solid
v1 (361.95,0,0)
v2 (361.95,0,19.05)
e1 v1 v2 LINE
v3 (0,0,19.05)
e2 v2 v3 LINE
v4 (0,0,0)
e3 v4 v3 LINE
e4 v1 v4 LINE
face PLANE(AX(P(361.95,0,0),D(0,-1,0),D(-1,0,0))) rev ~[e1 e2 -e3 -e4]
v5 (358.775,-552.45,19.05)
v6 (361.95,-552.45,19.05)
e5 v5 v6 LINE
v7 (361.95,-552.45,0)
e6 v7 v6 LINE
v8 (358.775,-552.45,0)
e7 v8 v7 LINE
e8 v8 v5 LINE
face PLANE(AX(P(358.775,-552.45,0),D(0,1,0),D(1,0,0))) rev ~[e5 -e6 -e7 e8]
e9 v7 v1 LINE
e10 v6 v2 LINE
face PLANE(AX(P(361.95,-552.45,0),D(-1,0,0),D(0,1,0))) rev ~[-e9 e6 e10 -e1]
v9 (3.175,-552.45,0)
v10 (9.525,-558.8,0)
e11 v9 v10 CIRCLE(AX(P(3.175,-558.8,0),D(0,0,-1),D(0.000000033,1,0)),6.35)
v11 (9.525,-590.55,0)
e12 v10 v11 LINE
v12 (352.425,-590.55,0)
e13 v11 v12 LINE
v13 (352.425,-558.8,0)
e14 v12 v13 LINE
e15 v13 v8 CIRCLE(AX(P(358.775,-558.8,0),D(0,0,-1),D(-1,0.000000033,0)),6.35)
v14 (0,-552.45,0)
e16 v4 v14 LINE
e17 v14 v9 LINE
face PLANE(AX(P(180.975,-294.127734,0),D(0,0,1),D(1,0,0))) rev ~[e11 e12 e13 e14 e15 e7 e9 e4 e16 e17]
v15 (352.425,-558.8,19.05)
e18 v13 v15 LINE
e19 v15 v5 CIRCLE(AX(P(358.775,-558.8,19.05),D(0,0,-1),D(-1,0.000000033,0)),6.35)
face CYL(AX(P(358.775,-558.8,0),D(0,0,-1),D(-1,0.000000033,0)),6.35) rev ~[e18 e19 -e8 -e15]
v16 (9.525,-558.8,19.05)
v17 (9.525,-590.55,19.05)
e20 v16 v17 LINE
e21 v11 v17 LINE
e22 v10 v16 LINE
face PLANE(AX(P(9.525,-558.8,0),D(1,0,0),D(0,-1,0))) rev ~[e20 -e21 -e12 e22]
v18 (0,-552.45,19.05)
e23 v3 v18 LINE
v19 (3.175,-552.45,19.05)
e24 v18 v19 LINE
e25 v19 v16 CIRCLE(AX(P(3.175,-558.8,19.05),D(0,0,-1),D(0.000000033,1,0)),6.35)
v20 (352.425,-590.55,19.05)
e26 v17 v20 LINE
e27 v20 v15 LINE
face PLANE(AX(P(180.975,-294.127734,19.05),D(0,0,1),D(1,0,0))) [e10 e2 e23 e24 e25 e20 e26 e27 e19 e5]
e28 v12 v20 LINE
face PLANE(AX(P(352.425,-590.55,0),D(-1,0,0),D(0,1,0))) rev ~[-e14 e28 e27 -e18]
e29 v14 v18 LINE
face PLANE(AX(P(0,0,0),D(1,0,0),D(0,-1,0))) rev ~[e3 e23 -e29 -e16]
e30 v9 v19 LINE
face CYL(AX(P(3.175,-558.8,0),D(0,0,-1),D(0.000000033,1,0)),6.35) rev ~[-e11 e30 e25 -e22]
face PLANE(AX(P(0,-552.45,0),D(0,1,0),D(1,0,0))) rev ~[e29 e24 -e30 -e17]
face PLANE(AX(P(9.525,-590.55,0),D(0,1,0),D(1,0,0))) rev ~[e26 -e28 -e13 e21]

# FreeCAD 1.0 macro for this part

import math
import FreeCAD as App
import Part
import Sketcher

V = App.Vector
Q = App.Units.Quantity

doc = App.newDocument("Part")
body = doc.addObject("PartDesign::Body", "Body")

# Sketch on XY plane
sketch1 = body.newObject("Sketcher::SketchObject", "Sketch")
sketch1.AttachmentSupport = (doc.getObject("XY_Plane"), [""])
sketch1.MapMode = "FlatFace"
sketch1.addGeometry([
    Part.LineSegment(V(361.9, 0, 0), V(0, 0, 0)),  # 0
    Part.LineSegment(V(0, 0, 0), V(0, -552.5, 0)),  # 1
    Part.LineSegment(V(0, -552.5, 0), V(3.2, -552.5, 0)),  # 2
    Part.ArcOfCircle(Part.Circle(V(3.2, -558.8, 0), V(0, 0, 1), 6.4), math.radians(0), math.radians(90)),  # 3
    Part.LineSegment(V(9.5, -558.8, 0), V(9.5, -590.5, 0)),  # 4
    Part.LineSegment(V(9.5, -590.5, 0), V(352.4, -590.5, 0)),  # 5
    Part.LineSegment(V(352.4, -590.5, 0), V(352.4, -558.8, 0)),  # 6
    Part.ArcOfCircle(Part.Circle(V(358.8, -558.8, 0), V(0, 0, 1), 6.4), math.radians(90), math.radians(180)),  # 7
    Part.LineSegment(V(358.8, -552.5, 0), V(361.9, -552.5, 0)),  # 8
    Part.LineSegment(V(361.9, -552.5, 0), V(361.9, 0, 0)),  # 9
], False)
sketch1.addConstraint([
    Sketcher.Constraint("Coincident", 0, 2, 1, 1),
    Sketcher.Constraint("Coincident", 1, 2, 2, 1),
    Sketcher.Constraint("Tangent", 2, 2, 3, 2),
    Sketcher.Constraint("Tangent", 3, 1, 4, 1),
    Sketcher.Constraint("Coincident", 4, 2, 5, 1),
    Sketcher.Constraint("Coincident", 5, 2, 6, 1),
    Sketcher.Constraint("Tangent", 6, 2, 7, 2),
    Sketcher.Constraint("Tangent", 7, 1, 8, 1),
    Sketcher.Constraint("Coincident", 8, 2, 9, 1),
    Sketcher.Constraint("Coincident", 9, 2, 0, 1),
    Sketcher.Constraint("Horizontal", 0),
    Sketcher.Constraint("Vertical", 1),
    Sketcher.Constraint("Horizontal", 2),
    Sketcher.Constraint("Vertical", 4),
    Sketcher.Constraint("Horizontal", 5),
    Sketcher.Constraint("Vertical", 6),
    Sketcher.Constraint("Horizontal", 8),
    Sketcher.Constraint("Vertical", 9),
    Sketcher.Constraint("Coincident", 0, 2, -1, 1),
    Sketcher.Constraint("Equal", 3, 7),
    Sketcher.Constraint("Horizontal", 3, 3, 7, 3),
    Sketcher.Constraint("Equal", 2, 8),
    Sketcher.Constraint("Radius", 3, Q("0.25 in")),
    Sketcher.Constraint("DistanceX", 5, 1, 5, 2, Q("13.5 in")),
    Sketcher.Constraint("DistanceY", 3, 3, -1, 1, Q("22 in")),
    Sketcher.Constraint("DistanceX", 0, 2, 0, 1, Q("14.25 in")),
    Sketcher.Constraint("DistanceY", 4, 2, 4, 1, Q("1.25 in")),
])
pad1 = body.newObject("PartDesign::Pad", "Pad")
pad1.Profile = sketch1
pad1.Length = Q("0.75 in")

doc.recompute()
